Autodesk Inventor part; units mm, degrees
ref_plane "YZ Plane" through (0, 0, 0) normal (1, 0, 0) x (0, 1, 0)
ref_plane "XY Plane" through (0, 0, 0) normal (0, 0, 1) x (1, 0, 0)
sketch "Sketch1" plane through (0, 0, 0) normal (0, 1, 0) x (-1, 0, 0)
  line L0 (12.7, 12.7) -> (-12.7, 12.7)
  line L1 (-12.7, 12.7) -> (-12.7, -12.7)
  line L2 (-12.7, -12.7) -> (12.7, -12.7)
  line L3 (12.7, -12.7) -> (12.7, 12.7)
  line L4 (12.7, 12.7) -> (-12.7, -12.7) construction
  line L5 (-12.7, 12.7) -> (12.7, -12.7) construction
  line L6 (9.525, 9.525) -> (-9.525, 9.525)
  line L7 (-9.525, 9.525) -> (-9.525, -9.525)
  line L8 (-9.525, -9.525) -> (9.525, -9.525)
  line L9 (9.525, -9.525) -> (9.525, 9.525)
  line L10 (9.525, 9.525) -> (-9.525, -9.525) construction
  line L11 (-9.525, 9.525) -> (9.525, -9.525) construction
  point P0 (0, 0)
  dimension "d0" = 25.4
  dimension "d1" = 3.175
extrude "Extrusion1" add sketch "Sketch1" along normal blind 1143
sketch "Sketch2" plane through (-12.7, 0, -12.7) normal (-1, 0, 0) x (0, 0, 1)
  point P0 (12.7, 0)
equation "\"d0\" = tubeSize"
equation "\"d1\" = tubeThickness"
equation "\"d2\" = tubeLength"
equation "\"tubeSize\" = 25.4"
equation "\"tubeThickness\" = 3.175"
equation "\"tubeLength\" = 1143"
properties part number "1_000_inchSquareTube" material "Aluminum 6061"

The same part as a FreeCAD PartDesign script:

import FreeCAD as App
import Part
import Sketcher
from FreeCAD import Vector
Q = App.Units.Quantity


def add_polygon(sketch, points):
    """Adds a closed chain of lines whose ends are joined by coincident constraints."""
    first, n = sketch.GeometryCount, len(points)
    for a, b in zip(points, points[1:] + points[:1]):
        sketch.addGeometry(Part.LineSegment(App.Vector(*a, 0), App.Vector(*b, 0)), False)
    for i in range(n):
        sketch.addConstraint(Sketcher.Constraint("Coincident", first + i, 2, first + (i + 1) % n, 1))

doc = App.newDocument("Part")
body = doc.addObject("PartDesign::Body", "Body")

sketch1 = body.newObject("Sketcher::SketchObject", "Sketch")
sketch1.AttachmentSupport = (doc.getObject("XZ_Plane"), [""])
sketch1.MapMode = "FlatFace"
add_polygon(sketch1, [(-13, -13), (-13, 13), (13, 13), (13, -13)])
add_polygon(sketch1, [(10, 10), (-10, 10), (-10, -10), (10, -10)])
sketch1.addConstraint([
    Sketcher.Constraint("Vertical", 0),
    Sketcher.Constraint("Horizontal", 1),
    Sketcher.Constraint("Vertical", 2),
    Sketcher.Constraint("Horizontal", 3),
    Sketcher.Constraint("Horizontal", 4),
    Sketcher.Constraint("Vertical", 5),
    Sketcher.Constraint("Horizontal", 6),
    Sketcher.Constraint("Vertical", 7),
    Sketcher.Constraint("Symmetric", 0, 2, 2, 2, -1, 1),
    Sketcher.Constraint("Symmetric", 4, 2, 6, 2, -1, 1),
    Sketcher.Constraint("Equal", 3, 0),
    Sketcher.Constraint("Equal", 6, 5),
    Sketcher.Constraint("DistanceX", 1, 1, 1, 2, Q("1 in")),
    Sketcher.Constraint("DistanceX", 0, 2, 4, 2, Q("0.125 in")),
])
pad1 = body.newObject("PartDesign::Pad", "Pad")
pad1.Profile = sketch1
pad1.Length = Q("45 in")
pad1.Reversed = True

doc.recompute()
